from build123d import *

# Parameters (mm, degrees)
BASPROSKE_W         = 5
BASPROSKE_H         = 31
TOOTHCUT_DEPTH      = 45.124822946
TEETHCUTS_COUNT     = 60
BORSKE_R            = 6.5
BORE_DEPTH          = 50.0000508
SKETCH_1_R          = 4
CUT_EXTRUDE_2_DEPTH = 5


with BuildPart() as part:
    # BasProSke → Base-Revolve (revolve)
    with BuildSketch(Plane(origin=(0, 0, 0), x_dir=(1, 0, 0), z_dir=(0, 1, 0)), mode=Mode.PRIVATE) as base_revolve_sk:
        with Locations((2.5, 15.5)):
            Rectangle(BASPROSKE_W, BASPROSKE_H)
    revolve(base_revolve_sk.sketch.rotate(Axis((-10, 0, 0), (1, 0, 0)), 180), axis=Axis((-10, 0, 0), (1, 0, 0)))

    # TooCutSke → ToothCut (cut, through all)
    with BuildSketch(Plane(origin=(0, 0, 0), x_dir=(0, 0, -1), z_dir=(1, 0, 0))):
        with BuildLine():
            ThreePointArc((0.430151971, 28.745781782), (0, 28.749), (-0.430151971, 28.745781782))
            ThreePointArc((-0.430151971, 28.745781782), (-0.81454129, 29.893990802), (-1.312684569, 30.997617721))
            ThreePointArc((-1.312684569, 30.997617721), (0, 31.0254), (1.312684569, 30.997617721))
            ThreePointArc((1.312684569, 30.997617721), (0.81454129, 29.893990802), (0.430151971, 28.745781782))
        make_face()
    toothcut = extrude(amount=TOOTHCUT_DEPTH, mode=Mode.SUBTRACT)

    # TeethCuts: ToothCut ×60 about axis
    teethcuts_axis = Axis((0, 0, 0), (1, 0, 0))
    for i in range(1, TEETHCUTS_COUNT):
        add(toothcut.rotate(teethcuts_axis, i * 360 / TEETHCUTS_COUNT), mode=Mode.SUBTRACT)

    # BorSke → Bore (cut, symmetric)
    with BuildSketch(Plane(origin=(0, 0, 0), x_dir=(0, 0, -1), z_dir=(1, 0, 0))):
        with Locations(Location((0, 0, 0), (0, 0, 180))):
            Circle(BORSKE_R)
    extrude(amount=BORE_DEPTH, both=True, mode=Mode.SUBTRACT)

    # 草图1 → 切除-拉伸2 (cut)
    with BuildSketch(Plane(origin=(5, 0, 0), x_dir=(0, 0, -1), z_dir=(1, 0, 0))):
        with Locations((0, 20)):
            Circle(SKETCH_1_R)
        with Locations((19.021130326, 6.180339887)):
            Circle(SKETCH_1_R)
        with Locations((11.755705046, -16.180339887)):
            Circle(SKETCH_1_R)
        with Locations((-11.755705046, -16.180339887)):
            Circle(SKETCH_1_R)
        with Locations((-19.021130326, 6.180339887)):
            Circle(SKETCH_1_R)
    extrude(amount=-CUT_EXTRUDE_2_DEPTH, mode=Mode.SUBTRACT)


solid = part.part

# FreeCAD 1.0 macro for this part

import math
import FreeCAD as App
import Part
import Sketcher


def add_polygon(sketch, points):
    """Adds a closed chain of lines whose ends are joined by coincident constraints."""
    first, n = sketch.GeometryCount, len(points)
    for a, b in zip(points, points[1:] + points[:1]):
        sketch.addGeometry(Part.LineSegment(App.Vector(*a, 0), App.Vector(*b, 0)), False)
    for i in range(n):
        sketch.addConstraint(Sketcher.Constraint("Coincident", first + i, 2, first + (i + 1) % n, 1))

doc = App.newDocument("Part")
body = doc.addObject("PartDesign::Body", "Body")

# Sketch on XZ plane
sketch1 = doc.addObject("Sketcher::SketchObject", "Sketch")
body.addObject(sketch1)
sketch1.AttachmentSupport = (doc.XZ_Plane, [""])
sketch1.MapMode = "FlatFace"
add_polygon(sketch1, [(0, -31), (0, 0), (5, 0), (5, -31)])  # lines 0-3
sketch1.addConstraint([
    Sketcher.Constraint("Vertical", 0),
    Sketcher.Constraint("Horizontal", 1),
    Sketcher.Constraint("Vertical", 2),
    Sketcher.Constraint("Horizontal", 3),
    Sketcher.Constraint("Coincident", 0, 2, -1, 1),
    Sketcher.Constraint("DistanceX", 1, 1, 1, 2, 5.0),
    Sketcher.Constraint("DistanceY", 0, 1, 0, 2, 31.0),
])
revolution = doc.addObject("PartDesign::Revolution", "Revolution")
body.addObject(revolution)
revolution.Profile = sketch1
revolution.ReferenceAxis = (sketch1, ["H_Axis"])
revolution.Angle = 360

# Sketch on YZ plane
sketch2 = doc.addObject("Sketcher::SketchObject", "Sketch001")
body.addObject(sketch2)
sketch2.AttachmentSupport = (doc.YZ_Plane, [""])
sketch2.MapMode = "FlatFace"
sketch2.addGeometry([
    Part.ArcOfCircle(Part.Circle(App.Vector(0, 0, 0), App.Vector(0, 0, 1), 28.7), math.radians(-0.86), math.radians(0.86)),
    Part.ArcOfCircle(Part.Circle(App.Vector(25.5, -12, 0), App.Vector(0, 0, 1), 12), math.radians(62.82), math.radians(74.38)),
    Part.ArcOfCircle(Part.Circle(App.Vector(0, 0, 0), App.Vector(0, 0, 1), 31), math.radians(-2.42), math.radians(2.42)),
    Part.ArcOfCircle(Part.Circle(App.Vector(25.5, 12, 0), App.Vector(0, 0, 1), 12), math.radians(-74.38), math.radians(-62.82)),
], False)
sketch2.addConstraint([
    Sketcher.Constraint("Coincident", 0, 1, 1, 2),
    Sketcher.Constraint("Coincident", 1, 1, 2, 1),
    Sketcher.Constraint("Coincident", 2, 2, 3, 2),
    Sketcher.Constraint("Coincident", 3, 1, 0, 2),
    Sketcher.Constraint("Coincident", 0, 3, -1, 1),
    Sketcher.Constraint("Coincident", 2, 3, -1, 1),
    Sketcher.Constraint("Equal", 1, 3),
    Sketcher.Constraint("Symmetric", 1, 3, 3, 3, -1),
    Sketcher.Constraint("Radius", 1, 12.0),
    Sketcher.Constraint("Radius", 2, 31.0254),
    Sketcher.Constraint("Radius", 0, 28.748996),
    Sketcher.Constraint("DistanceY", 1, 3, -1, 1, 11.98713),
    Sketcher.Constraint("DistanceY", 0, 1, -1, 1, 0.430152),
])
pocket1 = doc.addObject("PartDesign::Pocket", "Pocket")
body.addObject(pocket1)
pocket1.Profile = sketch2
pocket1.Type = "ThroughAll"
pocket1.Reversed = True
doc.recompute()

polarpattern = doc.addObject("PartDesign::PolarPattern", "PolarPattern")
body.addObject(polarpattern)
polarpattern.Originals = [pocket1]
polarpattern.Axis = (doc.X_Axis, [""])
polarpattern.Angle = 360
polarpattern.Occurrences = 60
body.Tip = polarpattern

# Sketch on YZ plane
sketch3 = doc.addObject("Sketcher::SketchObject", "Sketch002")
body.addObject(sketch3)
sketch3.AttachmentSupport = (doc.YZ_Plane, [""])
sketch3.MapMode = "FlatFace"
sketch3.addGeometry(Part.Circle(App.Vector(0, 0, 0), App.Vector(0, 0, 1), 6), False)
sketch3.addConstraint([
    Sketcher.Constraint("Coincident", 0, 3, -1, 1),
    Sketcher.Constraint("Diameter", 0, 13.0),
])
pocket2 = doc.addObject("PartDesign::Pocket", "Pocket001")
body.addObject(pocket2)
pocket2.Profile = sketch3
pocket2.Length = 100.000102
pocket2.Midplane = True

# Sketch on YZ plane
sketch4 = doc.addObject("Sketcher::SketchObject", "Sketch003")
body.addObject(sketch4)
sketch4.AttachmentSupport = (doc.YZ_Plane, [""])
sketch4.MapMode = "FlatFace"
sketch4.AttachmentOffset = App.Placement(App.Vector(0, 0, 5), App.Rotation())
sketch4.addGeometry([
    Part.Circle(App.Vector(20, 0, 0), App.Vector(0, 0, 1), 4),  # 0
    Part.Circle(App.Vector(6.2, -19, 0), App.Vector(0, 0, 1), 4),  # 1
    Part.Circle(App.Vector(-16.2, -11.8, 0), App.Vector(0, 0, 1), 4),  # 2
    Part.Circle(App.Vector(-16.2, 11.8, 0), App.Vector(0, 0, 1), 4),  # 3
    Part.Circle(App.Vector(6.2, 19, 0), App.Vector(0, 0, 1), 4),  # 4
], False)
sketch4.addConstraint([
    Sketcher.Constraint("Equal", 0, 1),
    Sketcher.Constraint("Equal", 1, 2),
    Sketcher.Constraint("Equal", 2, 3),
    Sketcher.Constraint("Equal", 3, 4),
    Sketcher.Constraint("Symmetric", 2, 3, 3, 3, -1),
    Sketcher.Constraint("Symmetric", 1, 3, 4, 3, -1),
    Sketcher.Constraint("PointOnObject", 0, 3, -1),
    Sketcher.Constraint("Diameter", 0, 8.0),
    Sketcher.Constraint("DistanceX", -1, 1, 0, 3, 20.0),
    Sketcher.Constraint("DistanceX", -1, 1, 1, 3, 6.18034),
    Sketcher.Constraint("DistanceY", 1, 3, -1, 1, 19.02113),
    Sketcher.Constraint("DistanceX", 2, 3, -1, 1, 16.18034),
    Sketcher.Constraint("DistanceY", 2, 3, 3, 3, 23.51141),
])
pocket3 = doc.addObject("PartDesign::Pocket", "Pocket002")
body.addObject(pocket3)
pocket3.Profile = sketch4
pocket3.Length = 5

doc.recompute()
